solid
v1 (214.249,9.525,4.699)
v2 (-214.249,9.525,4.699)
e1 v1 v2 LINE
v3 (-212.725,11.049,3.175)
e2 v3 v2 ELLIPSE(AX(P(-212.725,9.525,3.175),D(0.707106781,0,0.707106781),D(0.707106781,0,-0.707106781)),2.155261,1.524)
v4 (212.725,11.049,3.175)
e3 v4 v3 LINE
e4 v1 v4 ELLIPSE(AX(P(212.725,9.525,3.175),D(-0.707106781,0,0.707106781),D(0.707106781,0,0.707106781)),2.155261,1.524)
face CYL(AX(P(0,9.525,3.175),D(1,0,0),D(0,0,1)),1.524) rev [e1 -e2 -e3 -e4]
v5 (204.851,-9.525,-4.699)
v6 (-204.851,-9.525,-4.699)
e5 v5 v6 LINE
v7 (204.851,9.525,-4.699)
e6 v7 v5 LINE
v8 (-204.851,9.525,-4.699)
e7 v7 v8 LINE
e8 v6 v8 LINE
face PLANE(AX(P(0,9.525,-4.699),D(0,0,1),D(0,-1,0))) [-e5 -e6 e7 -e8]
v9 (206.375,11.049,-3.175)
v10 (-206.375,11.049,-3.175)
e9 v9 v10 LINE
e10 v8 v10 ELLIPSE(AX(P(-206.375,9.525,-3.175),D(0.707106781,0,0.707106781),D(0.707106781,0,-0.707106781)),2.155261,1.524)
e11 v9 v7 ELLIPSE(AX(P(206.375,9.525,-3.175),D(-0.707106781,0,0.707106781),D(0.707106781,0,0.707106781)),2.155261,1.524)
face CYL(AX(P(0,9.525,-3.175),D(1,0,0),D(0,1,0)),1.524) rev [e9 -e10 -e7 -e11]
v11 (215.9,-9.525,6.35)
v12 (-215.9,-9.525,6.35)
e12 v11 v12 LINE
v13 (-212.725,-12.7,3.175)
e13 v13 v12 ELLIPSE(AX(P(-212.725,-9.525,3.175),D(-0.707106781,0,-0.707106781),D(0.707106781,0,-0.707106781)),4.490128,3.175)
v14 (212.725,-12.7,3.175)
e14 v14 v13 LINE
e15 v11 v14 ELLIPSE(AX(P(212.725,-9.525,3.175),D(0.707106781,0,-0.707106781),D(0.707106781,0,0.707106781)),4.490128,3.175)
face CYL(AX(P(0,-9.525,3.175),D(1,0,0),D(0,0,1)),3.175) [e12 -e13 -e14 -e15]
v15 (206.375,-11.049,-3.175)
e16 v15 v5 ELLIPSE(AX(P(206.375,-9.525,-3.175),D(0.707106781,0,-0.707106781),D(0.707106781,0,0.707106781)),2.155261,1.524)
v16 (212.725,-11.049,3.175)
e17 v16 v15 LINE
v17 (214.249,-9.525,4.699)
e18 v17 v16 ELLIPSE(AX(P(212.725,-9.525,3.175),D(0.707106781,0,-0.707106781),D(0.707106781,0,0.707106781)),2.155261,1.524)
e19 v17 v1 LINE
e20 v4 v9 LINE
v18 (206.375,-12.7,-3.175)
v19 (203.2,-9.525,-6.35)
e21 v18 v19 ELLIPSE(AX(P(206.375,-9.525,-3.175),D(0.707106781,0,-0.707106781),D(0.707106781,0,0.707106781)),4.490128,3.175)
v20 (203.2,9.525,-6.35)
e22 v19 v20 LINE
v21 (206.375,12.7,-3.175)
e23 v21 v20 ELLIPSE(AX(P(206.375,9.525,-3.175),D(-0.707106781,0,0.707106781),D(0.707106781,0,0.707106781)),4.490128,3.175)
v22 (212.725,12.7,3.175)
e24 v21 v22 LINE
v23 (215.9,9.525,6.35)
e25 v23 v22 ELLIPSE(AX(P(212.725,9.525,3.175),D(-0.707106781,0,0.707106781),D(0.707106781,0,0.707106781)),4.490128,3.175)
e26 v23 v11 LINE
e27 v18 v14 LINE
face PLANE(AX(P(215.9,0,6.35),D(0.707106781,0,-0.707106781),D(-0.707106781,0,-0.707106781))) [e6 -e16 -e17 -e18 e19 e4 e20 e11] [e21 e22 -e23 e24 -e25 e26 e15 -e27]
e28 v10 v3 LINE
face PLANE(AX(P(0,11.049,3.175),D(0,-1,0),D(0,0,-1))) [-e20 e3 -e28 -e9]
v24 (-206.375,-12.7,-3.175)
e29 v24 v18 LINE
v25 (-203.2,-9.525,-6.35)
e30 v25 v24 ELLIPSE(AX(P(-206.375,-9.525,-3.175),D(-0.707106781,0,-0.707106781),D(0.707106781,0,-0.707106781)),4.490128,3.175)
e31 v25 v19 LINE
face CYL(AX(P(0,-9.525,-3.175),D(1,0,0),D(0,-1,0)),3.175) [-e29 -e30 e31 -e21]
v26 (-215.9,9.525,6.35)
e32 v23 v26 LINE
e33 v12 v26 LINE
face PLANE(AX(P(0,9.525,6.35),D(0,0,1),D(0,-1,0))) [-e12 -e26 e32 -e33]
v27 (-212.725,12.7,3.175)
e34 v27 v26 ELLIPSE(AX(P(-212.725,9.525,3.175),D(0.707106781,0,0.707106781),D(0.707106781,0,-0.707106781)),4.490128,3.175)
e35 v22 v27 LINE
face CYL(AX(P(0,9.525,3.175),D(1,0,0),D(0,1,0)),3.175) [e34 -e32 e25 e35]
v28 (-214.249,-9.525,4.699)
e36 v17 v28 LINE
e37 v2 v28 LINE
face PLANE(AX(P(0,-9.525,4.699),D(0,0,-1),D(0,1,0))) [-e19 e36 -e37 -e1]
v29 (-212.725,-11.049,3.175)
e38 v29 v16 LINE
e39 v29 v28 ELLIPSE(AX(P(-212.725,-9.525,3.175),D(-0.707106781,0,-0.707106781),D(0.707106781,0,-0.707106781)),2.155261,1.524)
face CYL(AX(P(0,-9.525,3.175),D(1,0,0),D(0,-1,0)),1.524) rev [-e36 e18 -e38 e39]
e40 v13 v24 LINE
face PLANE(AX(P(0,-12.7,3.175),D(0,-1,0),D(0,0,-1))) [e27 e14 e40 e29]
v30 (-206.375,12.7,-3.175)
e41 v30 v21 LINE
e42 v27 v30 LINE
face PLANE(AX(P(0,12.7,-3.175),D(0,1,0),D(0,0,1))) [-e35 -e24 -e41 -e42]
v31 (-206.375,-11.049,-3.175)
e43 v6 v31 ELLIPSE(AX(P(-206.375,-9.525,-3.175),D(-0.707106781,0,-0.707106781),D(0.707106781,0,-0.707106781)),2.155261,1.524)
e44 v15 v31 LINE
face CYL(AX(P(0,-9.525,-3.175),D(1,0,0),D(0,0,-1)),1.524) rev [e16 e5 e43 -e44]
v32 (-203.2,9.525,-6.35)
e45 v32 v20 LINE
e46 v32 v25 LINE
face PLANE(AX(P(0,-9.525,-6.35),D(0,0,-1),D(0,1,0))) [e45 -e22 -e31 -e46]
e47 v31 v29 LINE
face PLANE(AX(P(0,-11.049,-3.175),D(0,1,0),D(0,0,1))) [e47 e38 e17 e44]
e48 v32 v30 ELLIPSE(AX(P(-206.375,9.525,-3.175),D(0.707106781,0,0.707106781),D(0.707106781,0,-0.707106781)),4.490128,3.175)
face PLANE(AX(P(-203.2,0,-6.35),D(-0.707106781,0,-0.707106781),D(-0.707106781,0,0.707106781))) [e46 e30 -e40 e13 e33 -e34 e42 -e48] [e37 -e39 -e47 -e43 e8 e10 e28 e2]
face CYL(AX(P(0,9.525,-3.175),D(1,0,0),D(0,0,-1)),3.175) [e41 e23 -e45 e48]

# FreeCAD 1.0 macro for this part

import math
import FreeCAD as App
import Part
import Sketcher
from FreeCAD import Vector
Q = App.Units.Quantity

doc = App.newDocument("Part")
params = doc.addObject("Spreadsheet::Sheet", "Params")
for row, (alias, value) in enumerate([
    ("sketch1_radius", "0.06 in"),
    ("sketch1_radius2", "0.125 in"),
    ("sketch1_width", "0.75 in"),
    ("sketch1_height", "0.25 in"),
    ("pad1_length", "17 in"),
    ("sketch2_width", "0.5 in"),
], start=1):
    params.set(f"A{row}", alias)
    params.set(f"B{row}", "=" + value)
    params.setAlias(f"B{row}", alias)

body = doc.addObject("PartDesign::Body", "Body")

# Sketch on YZ plane
sketch1 = body.newObject("Sketcher::SketchObject", "Sketch")
sketch1.AttachmentSupport = (doc.getObject("YZ_Plane"), [""])
sketch1.MapMode = "FlatFace"
sketch1.addGeometry([
    Part.LineSegment(Vector(-12.7, 3.2, 0), Vector(-12.7, -3.2, 0)),  # 0
    Part.ArcOfCircle(Part.Circle(Vector(-9.5, -3.2, 0), Vector(0, 0, 1), 3.2), math.radians(180), math.radians(270)),  # 1
    Part.LineSegment(Vector(-9.5, -6.3, 0), Vector(9.5, -6.3, 0)),  # 2
    Part.ArcOfCircle(Part.Circle(Vector(9.5, -3.2, 0), Vector(0, 0, 1), 3.2), math.radians(-90), math.radians(0)),  # 3
    Part.LineSegment(Vector(12.7, -3.2, 0), Vector(12.7, 3.2, 0)),  # 4
    Part.ArcOfCircle(Part.Circle(Vector(9.5, 3.2, 0), Vector(0, 0, 1), 3.2), math.radians(0), math.radians(90)),  # 5
    Part.LineSegment(Vector(9.5, 6.3, 0), Vector(-9.5, 6.3, 0)),  # 6
    Part.ArcOfCircle(Part.Circle(Vector(-9.5, 3.2, 0), Vector(0, 0, 1), 3.2), math.radians(90), math.radians(180)),  # 7
    Part.LineSegment(Vector(-11, -3.2, 0), Vector(-11, 3.2, 0)),  # 8
    Part.ArcOfCircle(Part.Circle(Vector(-9.5, 3.2, 0), Vector(0, 0, 1), 1.5), math.radians(90), math.radians(180)),  # 9
    Part.LineSegment(Vector(-9.5, 4.7, 0), Vector(9.5, 4.7, 0)),  # 10
    Part.ArcOfCircle(Part.Circle(Vector(9.5, 3.2, 0), Vector(0, 0, 1), 1.5), math.radians(0), math.radians(90)),  # 11
    Part.LineSegment(Vector(11, 3.2, 0), Vector(11, -3.2, 0)),  # 12
    Part.ArcOfCircle(Part.Circle(Vector(9.5, -3.2, 0), Vector(0, 0, 1), 1.5), math.radians(-90), math.radians(0)),  # 13
    Part.LineSegment(Vector(9.5, -4.7, 0), Vector(-9.5, -4.7, 0)),  # 14
    Part.ArcOfCircle(Part.Circle(Vector(-9.5, -3.2, 0), Vector(0, 0, 1), 1.5), math.radians(180), math.radians(270)),  # 15
], False)
sketch1.addConstraint([
    Sketcher.Constraint("Tangent", 0, 2, 1, 1),
    Sketcher.Constraint("Tangent", 1, 2, 2, 1),
    Sketcher.Constraint("Tangent", 2, 2, 3, 1),
    Sketcher.Constraint("Tangent", 3, 2, 4, 1),
    Sketcher.Constraint("Tangent", 4, 2, 5, 1),
    Sketcher.Constraint("Tangent", 5, 2, 6, 1),
    Sketcher.Constraint("Tangent", 6, 2, 7, 1),
    Sketcher.Constraint("Tangent", 7, 2, 0, 1),
    Sketcher.Constraint("Tangent", 8, 2, 9, 2),
    Sketcher.Constraint("Tangent", 9, 1, 10, 1),
    Sketcher.Constraint("Tangent", 10, 2, 11, 2),
    Sketcher.Constraint("Tangent", 11, 1, 12, 1),
    Sketcher.Constraint("Tangent", 12, 2, 13, 2),
    Sketcher.Constraint("Tangent", 13, 1, 14, 1),
    Sketcher.Constraint("Tangent", 14, 2, 15, 2),
    Sketcher.Constraint("Tangent", 15, 1, 8, 1),
    Sketcher.Constraint("Vertical", 0),
    Sketcher.Constraint("Horizontal", 2),
    Sketcher.Constraint("Vertical", 4),
    Sketcher.Constraint("Horizontal", 6),
    Sketcher.Constraint("Vertical", 8),
    Sketcher.Constraint("Horizontal", 10),
    Sketcher.Constraint("Vertical", 12),
    Sketcher.Constraint("Horizontal", 14),
    Sketcher.Constraint("Coincident", 9, 3, 7, 3),
    Sketcher.Constraint("Coincident", 11, 3, 5, 3),
    Sketcher.Constraint("Coincident", 13, 3, 3, 3),
    Sketcher.Constraint("Equal", 1, 3),
    Sketcher.Constraint("Equal", 3, 5),
    Sketcher.Constraint("Equal", 5, 7),
    Sketcher.Constraint("Equal", 13, 15),
    Sketcher.Constraint("Symmetric", 1, 3, 5, 3, -1, 1),
    Sketcher.Constraint("Radius", 9, Q("0.06 in")),
    Sketcher.Constraint("Radius", 1, Q("0.125 in")),
    Sketcher.Constraint("DistanceX", 2, 1, 2, 2, Q("0.75 in")),
    Sketcher.Constraint("DistanceY", 0, 2, 0, 1, Q("0.25 in")),
])
sketch1.setExpression("Constraints[32]", "Params.sketch1_radius")
sketch1.setExpression("Constraints[33]", "Params.sketch1_radius2")
sketch1.setExpression("Constraints[34]", "Params.sketch1_width")
sketch1.setExpression("Constraints[35]", "Params.sketch1_height")
pad1 = body.newObject("PartDesign::Pad", "Pad")
pad1.Profile = sketch1
pad1.setExpression("Length", "Params.pad1_length")
pad1.Midplane = True

# Sketch on XZ plane
sketch2 = body.newObject("Sketcher::SketchObject", "Sketch001")
sketch2.AttachmentSupport = (doc.getObject("XZ_Plane"), [""])
sketch2.MapMode = "FlatFace"
sketch2.addGeometry([
    Part.LineSegment(Vector(-216, 6, 0), Vector(-216, -6, 0)),  # 0
    Part.LineSegment(Vector(-216, -6, 0), Vector(-203, -6, 0)),  # 1
    Part.LineSegment(Vector(-203, -6, 0), Vector(-216, 6, 0)),  # 2
    Part.LineSegment(Vector(203, -6, 0), Vector(216, -6, 0)),  # 3
    Part.LineSegment(Vector(216, -6, 0), Vector(216, 6, 0)),  # 4
    Part.LineSegment(Vector(216, 6, 0), Vector(203, -6, 0)),  # 5
], False)
sketch2.addConstraint([
    Sketcher.Constraint("Coincident", 0, 2, 1, 1),
    Sketcher.Constraint("Coincident", 1, 2, 2, 1),
    Sketcher.Constraint("Coincident", 2, 2, 0, 1),
    Sketcher.Constraint("Coincident", 3, 2, 4, 1),
    Sketcher.Constraint("Coincident", 4, 2, 5, 1),
    Sketcher.Constraint("Coincident", 5, 2, 3, 1),
    Sketcher.Constraint("Vertical", 0),
    Sketcher.Constraint("Horizontal", 1),
    Sketcher.Constraint("Horizontal", 3),
    Sketcher.Constraint("Vertical", 4),
    Sketcher.Constraint("Symmetric", 2, 2, 3, 2, -1, 1),
    Sketcher.Constraint("Symmetric", 1, 2, 5, 2, -2),
    Sketcher.Constraint("Perpendicular", 2, 5),
    Sketcher.Constraint("Horizontal", 2, 2, 4, 2),
    Sketcher.Constraint("DistanceX", 1, 1, 1, 2, Q("0.5 in")),
    Sketcher.Constraint("DistanceX", 1, 2, -1, 1, Q("8 in")),
])
sketch2.setExpression("Constraints[14]", "Params.sketch2_width")
pocket1 = body.newObject("PartDesign::Pocket", "Pocket")
pocket1.Profile = sketch2
pocket1.Type = "ThroughAll"
pocket1.Midplane = True

doc.recompute()
